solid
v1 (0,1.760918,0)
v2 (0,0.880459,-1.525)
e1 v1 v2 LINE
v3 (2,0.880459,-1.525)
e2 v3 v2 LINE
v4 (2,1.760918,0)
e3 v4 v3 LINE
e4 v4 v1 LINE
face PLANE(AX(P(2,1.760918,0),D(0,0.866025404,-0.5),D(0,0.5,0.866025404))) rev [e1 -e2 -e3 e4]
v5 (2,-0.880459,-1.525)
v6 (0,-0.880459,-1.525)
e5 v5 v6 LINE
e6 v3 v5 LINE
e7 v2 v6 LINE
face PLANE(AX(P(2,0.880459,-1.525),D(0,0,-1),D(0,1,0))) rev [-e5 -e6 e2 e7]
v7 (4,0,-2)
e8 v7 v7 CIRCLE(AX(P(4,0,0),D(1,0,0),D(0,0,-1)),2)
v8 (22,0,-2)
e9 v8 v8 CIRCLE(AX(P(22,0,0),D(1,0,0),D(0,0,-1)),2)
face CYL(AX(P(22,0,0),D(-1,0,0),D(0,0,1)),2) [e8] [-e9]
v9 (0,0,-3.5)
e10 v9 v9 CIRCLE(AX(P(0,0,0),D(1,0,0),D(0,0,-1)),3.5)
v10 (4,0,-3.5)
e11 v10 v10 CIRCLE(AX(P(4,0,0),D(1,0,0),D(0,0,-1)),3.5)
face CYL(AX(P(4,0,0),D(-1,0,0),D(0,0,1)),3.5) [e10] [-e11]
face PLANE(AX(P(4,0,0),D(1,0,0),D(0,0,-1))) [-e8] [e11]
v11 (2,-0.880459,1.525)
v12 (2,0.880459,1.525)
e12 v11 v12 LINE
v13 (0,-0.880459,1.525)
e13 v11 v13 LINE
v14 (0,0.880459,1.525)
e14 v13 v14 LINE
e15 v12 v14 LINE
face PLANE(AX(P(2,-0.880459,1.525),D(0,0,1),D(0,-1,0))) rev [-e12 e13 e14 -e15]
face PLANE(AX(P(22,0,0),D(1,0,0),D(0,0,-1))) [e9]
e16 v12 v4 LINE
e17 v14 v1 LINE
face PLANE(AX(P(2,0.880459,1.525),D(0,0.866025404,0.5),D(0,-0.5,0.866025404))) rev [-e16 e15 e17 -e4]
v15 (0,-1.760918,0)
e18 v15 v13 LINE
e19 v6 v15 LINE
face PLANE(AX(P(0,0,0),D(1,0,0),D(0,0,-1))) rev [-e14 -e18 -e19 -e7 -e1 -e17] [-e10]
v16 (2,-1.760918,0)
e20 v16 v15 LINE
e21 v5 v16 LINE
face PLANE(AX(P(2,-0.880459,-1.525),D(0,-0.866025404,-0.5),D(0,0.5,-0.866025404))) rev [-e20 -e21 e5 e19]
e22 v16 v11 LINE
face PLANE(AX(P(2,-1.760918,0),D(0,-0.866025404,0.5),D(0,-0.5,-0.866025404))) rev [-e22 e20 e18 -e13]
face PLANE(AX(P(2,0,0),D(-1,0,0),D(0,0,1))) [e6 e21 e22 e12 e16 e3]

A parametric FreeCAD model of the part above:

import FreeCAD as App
import Part
import Sketcher
Q = App.Units.Quantity


def add_polygon(sketch, points):
    """Adds a closed chain of lines whose ends are joined by coincident constraints."""
    first, n = sketch.GeometryCount, len(points)
    for a, b in zip(points, points[1:] + points[:1]):
        sketch.addGeometry(Part.LineSegment(App.Vector(*a, 0), App.Vector(*b, 0)), False)
    for i in range(n):
        sketch.addConstraint(Sketcher.Constraint("Coincident", first + i, 2, first + (i + 1) % n, 1))

doc = App.newDocument("Part")
body = doc.addObject("PartDesign::Body", "Body")

# Sketch on YZ plane
sketch1 = body.newObject("Sketcher::SketchObject", "Sketch")
sketch1.AttachmentSupport = (doc.getObject("YZ_Plane"), [""])
sketch1.MapMode = "FlatFace"
sketch1.addGeometry(Part.Circle(App.Vector(0, 0, 0), App.Vector(0, 0, 1), 3.5), False)
sketch1.addConstraint(Sketcher.Constraint("Coincident", 0, 3, -1, 1))
sketch1.addConstraint(Sketcher.Constraint("Diameter", 0, Q("7 mm")))
pad1 = body.newObject("PartDesign::Pad", "Pad")
pad1.Profile = sketch1
pad1.Length = 4

# Sketch on YZ plane
sketch2 = body.newObject("Sketcher::SketchObject", "Sketch001")
sketch2.AttachmentSupport = (doc.getObject("YZ_Plane"), [""])
sketch2.MapMode = "FlatFace"
add_polygon(sketch2, [(-0.9, 1.5), (0.9, 1.5), (1.8, 0), (0.9, -1.5), (-0.9, -1.5), (-1.8, 0)])  # lines 0-5
sketch2.addConstraint(Sketcher.Constraint("Horizontal", 0))
sketch2.addConstraint(Sketcher.Constraint("Horizontal", 3))
sketch2.addConstraint(Sketcher.Constraint("Symmetric", 0, 2, 3, 2, -1, 1))
sketch2.addConstraint(Sketcher.Constraint("Symmetric", 1, 2, 4, 2, -1, 1))
sketch2.addConstraint(Sketcher.Constraint("PointOnObject", 1, 2, -1))
sketch2.addConstraint(Sketcher.Constraint("Parallel", 2, 5))
sketch2.addConstraint(Sketcher.Constraint("Vertical", 0, 2, 2, 2))
sketch2.addConstraint(Sketcher.Constraint("Angle", 1, Q("-60 deg")))
sketch2.addConstraint(Sketcher.Constraint("DistanceY", 2, 2, 0, 2, Q("3.05 mm")))
sketch2.addConstraint(Sketcher.Constraint("DistanceX", 0, 1, 0, 2, Q("1.760918 mm")))
pocket1 = body.newObject("PartDesign::Pocket", "Pocket")
pocket1.Profile = sketch2
pocket1.Length = 2
pocket1.Reversed = True

# Sketch on YZ plane
sketch3 = body.newObject("Sketcher::SketchObject", "Sketch002")
sketch3.AttachmentSupport = (doc.getObject("YZ_Plane"), [""])
sketch3.MapMode = "FlatFace"
sketch3.AttachmentOffset = App.Placement(App.Vector(0, 0, 4), App.Rotation())
sketch3.addGeometry(Part.Circle(App.Vector(0, 0, 0), App.Vector(0, 0, 1), 2), False)
sketch3.addConstraint(Sketcher.Constraint("Coincident", 0, 3, -1, 1))
sketch3.addConstraint(Sketcher.Constraint("Diameter", 0, Q("4 mm")))
pad2 = body.newObject("PartDesign::Pad", "Pad001")
pad2.Profile = sketch3
pad2.Length = 18

doc.recompute()
